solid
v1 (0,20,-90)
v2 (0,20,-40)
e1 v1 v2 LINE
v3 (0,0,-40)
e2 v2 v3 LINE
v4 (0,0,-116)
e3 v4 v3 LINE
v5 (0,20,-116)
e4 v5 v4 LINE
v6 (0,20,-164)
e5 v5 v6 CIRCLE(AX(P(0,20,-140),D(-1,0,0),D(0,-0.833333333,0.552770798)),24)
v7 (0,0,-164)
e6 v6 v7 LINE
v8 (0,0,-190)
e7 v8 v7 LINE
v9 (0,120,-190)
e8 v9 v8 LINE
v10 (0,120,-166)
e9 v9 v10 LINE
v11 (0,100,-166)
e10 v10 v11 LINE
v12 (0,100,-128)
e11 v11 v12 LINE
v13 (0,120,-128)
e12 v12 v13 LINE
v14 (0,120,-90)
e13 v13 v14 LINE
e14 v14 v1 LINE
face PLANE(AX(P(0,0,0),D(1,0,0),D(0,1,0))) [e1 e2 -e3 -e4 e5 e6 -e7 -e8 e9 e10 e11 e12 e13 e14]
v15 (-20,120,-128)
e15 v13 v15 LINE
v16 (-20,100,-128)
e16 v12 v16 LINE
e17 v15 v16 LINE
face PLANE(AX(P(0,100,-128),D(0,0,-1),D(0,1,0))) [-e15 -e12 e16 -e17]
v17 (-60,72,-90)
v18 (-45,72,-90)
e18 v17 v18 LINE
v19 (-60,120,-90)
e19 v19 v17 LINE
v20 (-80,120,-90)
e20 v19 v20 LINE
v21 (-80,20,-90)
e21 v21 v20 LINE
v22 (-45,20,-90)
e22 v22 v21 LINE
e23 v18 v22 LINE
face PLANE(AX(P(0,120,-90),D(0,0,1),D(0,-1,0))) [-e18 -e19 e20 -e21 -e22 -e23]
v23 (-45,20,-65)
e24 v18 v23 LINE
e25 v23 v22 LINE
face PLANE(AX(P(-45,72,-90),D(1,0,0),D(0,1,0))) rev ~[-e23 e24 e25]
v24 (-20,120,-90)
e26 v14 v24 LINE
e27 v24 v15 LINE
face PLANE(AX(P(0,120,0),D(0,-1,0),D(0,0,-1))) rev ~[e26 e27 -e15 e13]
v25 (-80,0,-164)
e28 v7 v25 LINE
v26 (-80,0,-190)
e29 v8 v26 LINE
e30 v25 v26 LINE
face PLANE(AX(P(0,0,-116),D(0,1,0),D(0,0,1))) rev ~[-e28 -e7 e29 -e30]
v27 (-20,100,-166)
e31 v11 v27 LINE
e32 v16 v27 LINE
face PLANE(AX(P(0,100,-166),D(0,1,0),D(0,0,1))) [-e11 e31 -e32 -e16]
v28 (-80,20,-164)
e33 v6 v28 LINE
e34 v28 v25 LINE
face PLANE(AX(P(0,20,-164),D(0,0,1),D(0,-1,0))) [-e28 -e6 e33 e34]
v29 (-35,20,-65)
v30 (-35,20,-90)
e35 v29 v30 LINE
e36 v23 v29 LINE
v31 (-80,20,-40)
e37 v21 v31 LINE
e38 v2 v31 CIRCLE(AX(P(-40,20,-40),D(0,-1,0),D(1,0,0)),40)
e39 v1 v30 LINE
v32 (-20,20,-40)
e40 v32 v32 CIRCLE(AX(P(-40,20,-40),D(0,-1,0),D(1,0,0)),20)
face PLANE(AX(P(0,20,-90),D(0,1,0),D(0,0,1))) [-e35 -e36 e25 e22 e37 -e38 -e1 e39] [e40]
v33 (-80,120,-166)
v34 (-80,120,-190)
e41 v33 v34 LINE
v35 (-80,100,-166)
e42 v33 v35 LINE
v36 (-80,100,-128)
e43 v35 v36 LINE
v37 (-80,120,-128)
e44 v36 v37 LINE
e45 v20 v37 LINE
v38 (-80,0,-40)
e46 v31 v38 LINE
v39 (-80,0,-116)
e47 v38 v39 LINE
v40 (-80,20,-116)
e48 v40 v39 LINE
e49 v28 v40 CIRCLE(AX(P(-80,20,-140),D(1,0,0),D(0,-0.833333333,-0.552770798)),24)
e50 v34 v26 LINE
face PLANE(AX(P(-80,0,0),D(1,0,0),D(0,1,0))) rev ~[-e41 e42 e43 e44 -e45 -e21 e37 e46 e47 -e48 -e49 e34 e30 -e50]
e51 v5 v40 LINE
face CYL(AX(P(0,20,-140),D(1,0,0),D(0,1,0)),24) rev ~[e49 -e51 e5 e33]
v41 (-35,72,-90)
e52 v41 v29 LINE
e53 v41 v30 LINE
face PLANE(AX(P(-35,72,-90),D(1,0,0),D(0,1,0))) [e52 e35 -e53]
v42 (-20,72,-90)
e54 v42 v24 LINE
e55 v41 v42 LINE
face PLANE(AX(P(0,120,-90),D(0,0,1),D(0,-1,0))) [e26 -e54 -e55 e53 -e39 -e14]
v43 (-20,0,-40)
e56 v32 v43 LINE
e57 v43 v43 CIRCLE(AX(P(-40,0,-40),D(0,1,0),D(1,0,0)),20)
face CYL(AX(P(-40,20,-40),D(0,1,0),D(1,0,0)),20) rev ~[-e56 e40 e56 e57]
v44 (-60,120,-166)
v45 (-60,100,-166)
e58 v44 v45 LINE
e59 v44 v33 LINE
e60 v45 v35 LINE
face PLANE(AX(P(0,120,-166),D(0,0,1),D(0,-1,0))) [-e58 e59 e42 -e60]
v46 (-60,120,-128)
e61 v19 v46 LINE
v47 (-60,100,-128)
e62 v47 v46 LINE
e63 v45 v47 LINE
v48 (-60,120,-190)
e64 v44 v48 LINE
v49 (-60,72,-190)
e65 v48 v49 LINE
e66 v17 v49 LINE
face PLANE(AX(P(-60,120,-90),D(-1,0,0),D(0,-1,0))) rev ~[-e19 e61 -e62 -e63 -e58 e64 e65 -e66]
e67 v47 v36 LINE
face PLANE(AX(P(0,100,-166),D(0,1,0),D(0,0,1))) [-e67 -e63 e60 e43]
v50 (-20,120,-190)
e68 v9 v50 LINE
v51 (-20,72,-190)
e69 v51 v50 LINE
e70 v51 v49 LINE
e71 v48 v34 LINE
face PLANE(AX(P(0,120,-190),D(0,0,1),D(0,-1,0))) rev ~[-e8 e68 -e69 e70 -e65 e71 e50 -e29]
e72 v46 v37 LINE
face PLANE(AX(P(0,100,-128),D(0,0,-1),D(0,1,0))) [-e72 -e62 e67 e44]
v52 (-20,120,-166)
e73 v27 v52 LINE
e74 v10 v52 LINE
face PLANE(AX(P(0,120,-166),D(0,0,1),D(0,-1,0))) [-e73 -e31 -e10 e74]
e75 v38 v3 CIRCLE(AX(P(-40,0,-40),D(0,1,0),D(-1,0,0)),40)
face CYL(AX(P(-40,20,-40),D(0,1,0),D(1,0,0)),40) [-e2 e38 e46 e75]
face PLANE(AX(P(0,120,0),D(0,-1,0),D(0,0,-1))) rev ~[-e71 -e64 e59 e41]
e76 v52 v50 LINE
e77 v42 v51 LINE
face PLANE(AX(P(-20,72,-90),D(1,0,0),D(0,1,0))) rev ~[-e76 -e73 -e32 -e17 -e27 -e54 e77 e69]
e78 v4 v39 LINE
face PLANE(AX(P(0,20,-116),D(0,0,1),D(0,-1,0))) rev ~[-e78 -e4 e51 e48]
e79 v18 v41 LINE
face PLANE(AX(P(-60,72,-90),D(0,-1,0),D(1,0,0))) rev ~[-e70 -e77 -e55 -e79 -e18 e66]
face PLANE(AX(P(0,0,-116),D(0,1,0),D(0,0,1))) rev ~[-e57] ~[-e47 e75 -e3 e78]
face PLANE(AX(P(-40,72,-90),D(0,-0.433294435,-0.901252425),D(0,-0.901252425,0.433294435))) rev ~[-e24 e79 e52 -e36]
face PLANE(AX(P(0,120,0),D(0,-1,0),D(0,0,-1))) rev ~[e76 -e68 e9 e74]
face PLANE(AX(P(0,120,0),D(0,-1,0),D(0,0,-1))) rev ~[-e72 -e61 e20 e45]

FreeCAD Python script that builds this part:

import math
import FreeCAD as App
import Part
import Sketcher

V = App.Vector
Q = App.Units.Quantity


def add_polygon(sketch, points):
    """Adds a closed chain of lines whose ends are joined by coincident constraints."""
    first, n = sketch.GeometryCount, len(points)
    for a, b in zip(points, points[1:] + points[:1]):
        sketch.addGeometry(Part.LineSegment(App.Vector(*a, 0), App.Vector(*b, 0)), False)
    for i in range(n):
        sketch.addConstraint(Sketcher.Constraint("Coincident", first + i, 2, first + (i + 1) % n, 1))

doc = App.newDocument("Part")
body = doc.addObject("PartDesign::Body", "Body")

sketch1 = body.newObject("Sketcher::SketchObject", "Sketch")
sketch1.AttachmentSupport = (doc.getObject("YZ_Plane"), [""])
sketch1.MapMode = "FlatFace"
add_polygon(sketch1, [(0, 0), (0, -190), (120, -190), (120, 0)])
sketch1.addConstraint([
    Sketcher.Constraint("Vertical", 0),
    Sketcher.Constraint("Horizontal", 1),
    Sketcher.Constraint("Vertical", 2),
    Sketcher.Constraint("Horizontal", 3),
    Sketcher.Constraint("Coincident", 3, 2, -1, 1),
    Sketcher.Constraint("DistanceX", 1, 1, 1, 2, Q("120 mm")),
    Sketcher.Constraint("DistanceY", 0, 2, 0, 1, Q("190 mm")),
])
pad1 = body.newObject("PartDesign::Pad", "Pad")
pad1.Profile = sketch1
pad1.Length = 80
pad1.Reversed = True

sketch2 = body.newObject("Sketcher::SketchObject", "Sketch001")
sketch2.AttachmentSupport = (doc.getObject("YZ_Plane"), [""])
sketch2.MapMode = "FlatFace"
add_polygon(sketch2, [(120, 0), (20, 0), (20, -90), (120, -90)])
sketch2.addGeometry(Part.ArcOfCircle(Part.Circle(V(20, -140, 0), V(0, 0, 1), 24), math.radians(-146), math.radians(146)), False)
sketch2.addGeometry(Part.LineSegment(V(0, -127, 0), V(0, -153, 0)), False)
add_polygon(sketch2, [(120, -166), (120, -128), (100, -128), (100, -166)])
sketch2.addConstraint([
    Sketcher.Constraint("Coincident", 4, 1, 5, 2),
    Sketcher.Constraint("Coincident", 5, 1, 4, 2),
    Sketcher.Constraint("Horizontal", 0),
    Sketcher.Constraint("Vertical", 1),
    Sketcher.Constraint("Horizontal", 2),
    Sketcher.Constraint("Vertical", 3),
    Sketcher.Constraint("Vertical", 5),
    Sketcher.Constraint("Vertical", 6),
    Sketcher.Constraint("Horizontal", 7),
    Sketcher.Constraint("Vertical", 8),
    Sketcher.Constraint("Horizontal", 9),
    Sketcher.Constraint("PointOnObject", 0, 2, -1),
    Sketcher.Constraint("PointOnObject", 4, 1, -2),
    Sketcher.Constraint("Vertical", 4, 3, 0, 2),
    Sketcher.Constraint("Vertical", 3, 2, 6, 2),
    Sketcher.Constraint("Radius", 4, Q("24 mm")),
    Sketcher.Constraint("DistanceX", 7, 2, 7, 1, Q("20 mm")),
    Sketcher.Constraint("DistanceY", 6, 1, 6, 2, Q("38 mm")),
    Sketcher.Constraint("DistanceX", -1, 1, 4, 3, Q("20 mm")),
    Sketcher.Constraint("DistanceX", -1, 1, 2, 2, Q("120 mm")),
    Sketcher.Constraint("DistanceY", 4, 3, 1, 2, Q("50 mm")),
    Sketcher.Constraint("DistanceY", 6, 2, 2, 2, Q("38 mm")),
    Sketcher.Constraint("DistanceY", 1, 2, 1, 1, Q("90 mm")),
])
pocket1 = body.newObject("PartDesign::Pocket", "Pocket")
pocket1.Profile = sketch2
pocket1.Length = 80

sketch3 = body.newObject("Sketcher::SketchObject", "Sketch002")
sketch3.AttachmentSupport = (doc.getObject("YZ_Plane"), [""])
sketch3.MapMode = "FlatFace"
sketch3.addGeometry([
    Part.LineSegment(V(20, -116, 0), V(0, -116, 0)),
    Part.LineSegment(V(0, -116, 0), V(0, -127, 0)),
    Part.ArcOfCircle(Part.Circle(V(20, -140, 0), V(0, 0, 1), 24), math.radians(90), math.radians(146)),
    Part.ArcOfCircle(Part.Circle(V(20, -140, 0), V(0, 0, 1), 24), math.radians(-146), math.radians(-90)),
    Part.LineSegment(V(0, -153, 0), V(0, -164, 0)),
    Part.LineSegment(V(0, -164, 0), V(20, -164, 0)),
], False)
sketch3.addConstraint([
    Sketcher.Constraint("Coincident", 0, 2, 1, 1),
    Sketcher.Constraint("Coincident", 1, 2, 2, 2),
    Sketcher.Constraint("Tangent", 2, 1, 0, 1),
    Sketcher.Constraint("Coincident", 3, 1, 4, 1),
    Sketcher.Constraint("Coincident", 4, 2, 5, 1),
    Sketcher.Constraint("Tangent", 5, 2, 3, 2),
    Sketcher.Constraint("Horizontal", 0),
    Sketcher.Constraint("Vertical", 1),
    Sketcher.Constraint("Vertical", 4),
    Sketcher.Constraint("Horizontal", 5),
    Sketcher.Constraint("Coincident", 3, 3, 2, 3),
    Sketcher.Constraint("Equal", 2, 3),
    Sketcher.Constraint("PointOnObject", 0, 2, -2),
    Sketcher.Constraint("PointOnObject", 3, 1, -2),
    Sketcher.Constraint("Radius", 2, Q("24 mm")),
    Sketcher.Constraint("DistanceX", 0, 2, 0, 1, Q("20 mm")),
    Sketcher.Constraint("DistanceY", 2, 3, -1, 1, Q("140 mm")),
])
pocket2 = body.newObject("PartDesign::Pocket", "Pocket001")
pocket2.Profile = sketch3
pocket2.Length = 80

sketch4 = body.newObject("Sketcher::SketchObject", "Sketch003")
sketch4.AttachmentSupport = (doc.getObject("XZ_Plane"), [""])
sketch4.MapMode = "FlatFace"
sketch4.AttachmentOffset = App.Placement(V(0, 0, -20), App.Rotation())
sketch4.addGeometry([
    Part.LineSegment(V(-40, 0, 0), V(0, 0, 0)),
    Part.LineSegment(V(0, 0, 0), V(0, -40, 0)),
    Part.ArcOfCircle(Part.Circle(V(-40, -40, 0), V(0, 0, 1), 40), math.radians(0), math.radians(90)),
    Part.LineSegment(V(-80, 0, 0), V(-40, 0, 0)),
    Part.ArcOfCircle(Part.Circle(V(-40, -40, 0), V(0, 0, 1), 40), math.radians(90), math.radians(180)),
    Part.LineSegment(V(-80, -40, 0), V(-80, 0, 0)),
    Part.Circle(V(-40, -40, 0), V(0, 0, 1), 20),
], False)
sketch4.addConstraint([
    Sketcher.Constraint("Coincident", 0, 2, 1, 1),
    Sketcher.Constraint("Tangent", 1, 2, 2, 1),
    Sketcher.Constraint("Tangent", 2, 2, 0, 1),
    Sketcher.Constraint("Tangent", 3, 2, 4, 1),
    Sketcher.Constraint("Tangent", 4, 2, 5, 1),
    Sketcher.Constraint("Coincident", 5, 2, 3, 1),
    Sketcher.Constraint("Horizontal", 0),
    Sketcher.Constraint("Vertical", 1),
    Sketcher.Constraint("Horizontal", 3),
    Sketcher.Constraint("Vertical", 5),
    Sketcher.Constraint("Coincident", 0, 2, -1, 1),
    Sketcher.Constraint("Coincident", 4, 3, 2, 3),
    Sketcher.Constraint("Coincident", 6, 3, 2, 3),
    Sketcher.Constraint("Equal", 2, 4),
    Sketcher.Constraint("Diameter", 6, Q("40 mm")),
    Sketcher.Constraint("Radius", 2, Q("40 mm")),
])
pocket3 = body.newObject("PartDesign::Pocket", "Pocket002")
pocket3.Profile = sketch4
pocket3.Length = 80
pocket3.Reversed = True

sketch5 = body.newObject("Sketcher::SketchObject", "Sketch004")
sketch5.AttachmentSupport = (doc.getObject("XY_Plane"), [""])
sketch5.MapMode = "FlatFace"
sketch5.AttachmentOffset = App.Placement(V(0, 0, -90), App.Rotation())
add_polygon(sketch5, [(-60, 120), (-60, 72), (-20, 72), (-20, 120)])
sketch5.addConstraint([
    Sketcher.Constraint("Vertical", 0),
    Sketcher.Constraint("Horizontal", 1),
    Sketcher.Constraint("Vertical", 2),
    Sketcher.Constraint("Horizontal", 3),
    Sketcher.Constraint("DistanceX", 1, 1, 1, 2, Q("40 mm")),
    Sketcher.Constraint("DistanceY", 0, 2, 0, 1, Q("48 mm")),
    Sketcher.Constraint("DistanceX", 1, 2, -1, 1, Q("20 mm")),
    Sketcher.Constraint("DistanceY", -1, 1, 0, 2, Q("72 mm")),
])
pocket4 = body.newObject("PartDesign::Pocket", "Pocket003")
pocket4.Profile = sketch5
pocket4.Length = 100

sketch6 = body.newObject("Sketcher::SketchObject", "Sketch005")
sketch6.AttachmentSupport = (doc.getObject("YZ_Plane"), [""])
sketch6.MapMode = "FlatFace"
sketch6.AttachmentOffset = App.Placement(V(0, 0, -40), App.Rotation())
add_polygon(sketch6, [(20, -90), (72, -90), (20, -65)])
sketch6.addConstraint([
    Sketcher.Constraint("Horizontal", 0),
    Sketcher.Constraint("Vertical", 2),
    Sketcher.Constraint("DistanceX", 0, 1, 0, 2, Q("52 mm")),
    Sketcher.Constraint("DistanceY", 2, 2, 2, 1, Q("25 mm")),
    Sketcher.Constraint("DistanceX", -1, 1, 0, 2, Q("72 mm")),
    Sketcher.Constraint("DistanceY", 0, 2, -1, 1, Q("90 mm")),
])
pad2 = body.newObject("PartDesign::Pad", "Pad001")
pad2.Profile = sketch6
pad2.Length = 10
pad2.Midplane = True

doc.recompute()
